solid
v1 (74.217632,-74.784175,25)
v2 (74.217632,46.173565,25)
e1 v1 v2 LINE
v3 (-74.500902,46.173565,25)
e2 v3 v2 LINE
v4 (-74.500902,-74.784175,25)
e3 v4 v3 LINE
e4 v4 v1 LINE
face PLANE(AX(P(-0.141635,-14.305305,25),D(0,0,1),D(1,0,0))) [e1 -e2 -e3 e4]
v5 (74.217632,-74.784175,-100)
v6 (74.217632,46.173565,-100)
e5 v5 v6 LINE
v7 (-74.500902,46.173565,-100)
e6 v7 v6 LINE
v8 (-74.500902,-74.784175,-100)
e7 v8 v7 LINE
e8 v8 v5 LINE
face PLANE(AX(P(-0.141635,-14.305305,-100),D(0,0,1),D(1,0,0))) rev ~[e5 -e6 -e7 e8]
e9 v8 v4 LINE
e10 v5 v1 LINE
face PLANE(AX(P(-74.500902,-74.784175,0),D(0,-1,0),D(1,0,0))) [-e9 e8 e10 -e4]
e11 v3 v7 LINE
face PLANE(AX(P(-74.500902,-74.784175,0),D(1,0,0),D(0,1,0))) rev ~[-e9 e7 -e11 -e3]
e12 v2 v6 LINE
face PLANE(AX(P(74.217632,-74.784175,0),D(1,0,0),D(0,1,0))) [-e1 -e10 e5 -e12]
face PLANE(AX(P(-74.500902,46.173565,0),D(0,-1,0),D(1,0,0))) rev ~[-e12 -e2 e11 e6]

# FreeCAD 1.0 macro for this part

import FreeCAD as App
import Part
import Sketcher
from FreeCAD import Vector


def add_polygon(sketch, points):
    """Adds a closed chain of lines whose ends are joined by coincident constraints."""
    first, n = sketch.GeometryCount, len(points)
    for a, b in zip(points, points[1:] + points[:1]):
        sketch.addGeometry(Part.LineSegment(App.Vector(*a, 0), App.Vector(*b, 0)), False)
    for i in range(n):
        sketch.addConstraint(Sketcher.Constraint("Coincident", first + i, 2, first + (i + 1) % n, 1))

doc = App.newDocument("Part")
params = doc.addObject("Spreadsheet::Sheet", "Params")
for row, (alias, value) in enumerate([
    ("pad1_length", "25 mm"),
    ("pad2_length", "100 mm"),
], start=1):
    params.set(f"A{row}", alias)
    params.set(f"B{row}", "=" + value)
    params.setAlias(f"B{row}", alias)

body = doc.addObject("PartDesign::Body", "Body")

# Sketch on XY plane
sketch1 = body.newObject("Sketcher::SketchObject", "Sketch")
sketch1.AttachmentSupport = (doc.getObject("XY_Plane"), [""])
sketch1.MapMode = "FlatFace"
add_polygon(sketch1, [(-75, 46), (-75, -75), (74, -75), (74, 46)])  # lines 0-3
sketch1.addConstraint([
    Sketcher.Constraint("Vertical", 0),
    Sketcher.Constraint("Horizontal", 1),
    Sketcher.Constraint("Vertical", 2),
    Sketcher.Constraint("Horizontal", 3),
    Sketcher.Constraint("DistanceY", 0, 2, 0, 1, 120.95774),
    Sketcher.Constraint("DistanceX", 1, 1, 1, 2, 148.718535),
    Sketcher.Constraint("DistanceX", 0, 2, -1, 1, 74.500902),
    Sketcher.Constraint("DistanceY", 0, 2, -1, 1, 74.784175),
])
pad1 = body.newObject("PartDesign::Pad", "Pad")
pad1.Profile = sketch1
pad1.setExpression("Length", "Params.pad1_length")

# Sketch on XY plane
sketch2 = body.newObject("Sketcher::SketchObject", "Sketch001")
sketch2.AttachmentSupport = (doc.getObject("XY_Plane"), [""])
sketch2.MapMode = "FlatFace"
add_polygon(sketch2, [(-75, 46), (-75, -75), (74, -75), (74, 46)])  # lines 0-3
sketch2.addConstraint([
    Sketcher.Constraint("Vertical", 0),
    Sketcher.Constraint("Horizontal", 1),
    Sketcher.Constraint("Vertical", 2),
    Sketcher.Constraint("Horizontal", 3),
    Sketcher.Constraint("DistanceY", 0, 2, 0, 1, 120.95774),
    Sketcher.Constraint("DistanceX", 1, 1, 1, 2, 148.718535),
    Sketcher.Constraint("DistanceX", 0, 2, -1, 1, 74.500902),
    Sketcher.Constraint("DistanceY", 0, 2, -1, 1, 74.784175),
])
pad2 = body.newObject("PartDesign::Pad", "Pad001")
pad2.Profile = sketch2
pad2.setExpression("Length", "Params.pad2_length")
pad2.Reversed = True

doc.recompute()
